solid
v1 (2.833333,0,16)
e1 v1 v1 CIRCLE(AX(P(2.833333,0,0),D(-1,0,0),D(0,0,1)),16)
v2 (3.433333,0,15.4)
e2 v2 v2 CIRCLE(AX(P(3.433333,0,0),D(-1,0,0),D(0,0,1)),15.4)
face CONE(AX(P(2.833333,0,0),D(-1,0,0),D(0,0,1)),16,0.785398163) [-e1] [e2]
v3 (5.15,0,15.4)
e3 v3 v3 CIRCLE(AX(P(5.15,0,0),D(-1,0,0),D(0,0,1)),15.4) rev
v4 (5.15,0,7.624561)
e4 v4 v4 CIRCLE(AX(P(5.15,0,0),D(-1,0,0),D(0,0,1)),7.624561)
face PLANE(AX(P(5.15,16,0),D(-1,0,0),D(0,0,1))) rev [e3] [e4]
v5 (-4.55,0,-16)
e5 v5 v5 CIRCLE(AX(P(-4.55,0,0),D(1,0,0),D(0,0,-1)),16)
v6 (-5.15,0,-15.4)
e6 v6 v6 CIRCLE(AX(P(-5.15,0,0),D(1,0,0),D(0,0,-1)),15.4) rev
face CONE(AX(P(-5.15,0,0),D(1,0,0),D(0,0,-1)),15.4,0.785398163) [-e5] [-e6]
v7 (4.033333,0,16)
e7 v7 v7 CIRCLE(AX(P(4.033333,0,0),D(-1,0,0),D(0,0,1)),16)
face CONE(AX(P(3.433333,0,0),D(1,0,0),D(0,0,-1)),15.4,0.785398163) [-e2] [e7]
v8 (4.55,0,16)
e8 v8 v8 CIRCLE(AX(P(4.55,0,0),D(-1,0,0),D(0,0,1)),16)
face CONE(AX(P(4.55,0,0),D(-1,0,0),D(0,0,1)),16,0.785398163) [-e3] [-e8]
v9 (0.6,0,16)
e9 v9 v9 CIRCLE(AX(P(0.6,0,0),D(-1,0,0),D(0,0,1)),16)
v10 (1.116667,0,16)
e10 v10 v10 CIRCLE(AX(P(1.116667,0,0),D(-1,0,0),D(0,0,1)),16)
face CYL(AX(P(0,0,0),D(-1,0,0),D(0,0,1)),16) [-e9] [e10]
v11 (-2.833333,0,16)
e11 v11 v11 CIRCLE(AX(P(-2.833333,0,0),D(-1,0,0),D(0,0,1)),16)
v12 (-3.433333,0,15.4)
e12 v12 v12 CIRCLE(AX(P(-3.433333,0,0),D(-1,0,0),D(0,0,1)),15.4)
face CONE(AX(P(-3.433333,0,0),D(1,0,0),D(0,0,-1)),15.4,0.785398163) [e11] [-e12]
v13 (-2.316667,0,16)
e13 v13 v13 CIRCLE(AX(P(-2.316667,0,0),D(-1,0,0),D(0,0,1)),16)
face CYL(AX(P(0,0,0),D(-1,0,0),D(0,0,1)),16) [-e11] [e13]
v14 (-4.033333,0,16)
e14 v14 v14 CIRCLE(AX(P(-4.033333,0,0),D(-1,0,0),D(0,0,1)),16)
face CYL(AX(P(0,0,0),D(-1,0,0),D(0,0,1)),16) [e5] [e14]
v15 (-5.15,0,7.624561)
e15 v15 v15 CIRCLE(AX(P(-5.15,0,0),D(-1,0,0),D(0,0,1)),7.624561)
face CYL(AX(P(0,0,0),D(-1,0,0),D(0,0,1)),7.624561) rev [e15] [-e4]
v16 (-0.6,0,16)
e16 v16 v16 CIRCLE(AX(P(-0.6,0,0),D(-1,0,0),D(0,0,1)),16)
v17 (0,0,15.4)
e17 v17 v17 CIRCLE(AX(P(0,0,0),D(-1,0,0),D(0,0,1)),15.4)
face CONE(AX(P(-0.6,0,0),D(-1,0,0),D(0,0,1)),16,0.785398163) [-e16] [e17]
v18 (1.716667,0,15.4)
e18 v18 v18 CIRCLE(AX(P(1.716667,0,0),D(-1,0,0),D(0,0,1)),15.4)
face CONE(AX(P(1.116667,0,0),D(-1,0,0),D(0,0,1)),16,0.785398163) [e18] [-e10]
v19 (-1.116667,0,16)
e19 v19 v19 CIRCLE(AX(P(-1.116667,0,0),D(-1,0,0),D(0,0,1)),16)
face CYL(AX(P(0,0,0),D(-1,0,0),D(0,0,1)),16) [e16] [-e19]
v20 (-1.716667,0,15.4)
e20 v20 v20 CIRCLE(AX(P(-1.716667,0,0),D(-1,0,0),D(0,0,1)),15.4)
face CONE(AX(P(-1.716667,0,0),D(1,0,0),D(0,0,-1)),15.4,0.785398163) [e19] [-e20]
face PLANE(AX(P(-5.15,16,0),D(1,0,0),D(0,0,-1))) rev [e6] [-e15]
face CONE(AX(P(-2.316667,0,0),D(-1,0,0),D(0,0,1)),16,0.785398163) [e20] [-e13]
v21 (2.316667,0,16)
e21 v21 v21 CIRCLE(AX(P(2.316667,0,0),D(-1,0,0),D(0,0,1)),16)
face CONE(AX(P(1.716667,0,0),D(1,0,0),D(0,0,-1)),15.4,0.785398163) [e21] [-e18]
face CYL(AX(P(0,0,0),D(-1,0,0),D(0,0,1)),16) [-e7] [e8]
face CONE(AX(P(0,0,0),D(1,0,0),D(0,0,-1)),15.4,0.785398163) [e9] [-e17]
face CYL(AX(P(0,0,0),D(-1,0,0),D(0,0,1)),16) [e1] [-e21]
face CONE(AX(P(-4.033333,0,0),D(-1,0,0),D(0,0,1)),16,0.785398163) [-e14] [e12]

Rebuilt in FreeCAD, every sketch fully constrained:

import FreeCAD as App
import Part
import Sketcher
from FreeCAD import Vector
Q = App.Units.Quantity


def edges_at(feature, points):
    """Names of the edges that pass closest to the given points."""
    edges = feature.Shape.Edges
    near = lambda p: min(range(len(edges)), key=lambda i: edges[i].distToShape(Part.Vertex(*p))[0])
    return sorted({f"Edge{near(p) + 1}" for p in points})

doc = App.newDocument("Part")
body = doc.addObject("PartDesign::Body", "Body")

# Sketch on XY plane
sketch1 = body.newObject("Sketcher::SketchObject", "Sketch")
sketch1.AttachmentSupport = (doc.getObject("XY_Plane"), [""])
sketch1.MapMode = "FlatFace"
sketch1.addGeometry(Part.LineSegment(Vector(-5, 16, 0), Vector(-5, 8, 0)), False)
sketch1.addGeometry(Part.LineSegment(Vector(-5, 8, 0), Vector(5, 8, 0)), False)
sketch1.addGeometry(Part.LineSegment(Vector(5, 8, 0), Vector(5, 16, 0)), False)
sketch1.addGeometry(Part.LineSegment(Vector(5, 16, 0), Vector(-5, 16, 0)), False)
sketch1.addConstraint(Sketcher.Constraint("Coincident", 0, 2, 1, 1))
sketch1.addConstraint(Sketcher.Constraint("Coincident", 1, 2, 2, 1))
sketch1.addConstraint(Sketcher.Constraint("Coincident", 2, 2, 3, 1))
sketch1.addConstraint(Sketcher.Constraint("Coincident", 3, 2, 0, 1))
sketch1.addConstraint(Sketcher.Constraint("Vertical", 0))
sketch1.addConstraint(Sketcher.Constraint("Horizontal", 1))
sketch1.addConstraint(Sketcher.Constraint("Vertical", 2))
sketch1.addConstraint(Sketcher.Constraint("Horizontal", 3))
sketch1.addConstraint(Sketcher.Constraint("DistanceX", 1, 1, 1, 2, Q("10.3 mm")))
sketch1.addConstraint(Sketcher.Constraint("DistanceY", -1, 1, 2, 2, Q("16 mm")))
sketch1.addConstraint(Sketcher.Constraint("DistanceX", 0, 2, -1, 1, Q("5.15 mm")))
sketch1.addConstraint(Sketcher.Constraint("DistanceY", 0, 2, 0, 1, Q("8.375439 mm")))
revolution = body.newObject("PartDesign::Revolution", "Revolution")
revolution.Profile = sketch1
revolution.ReferenceAxis = (sketch1, ["H_Axis"])
revolution.Angle = 360
doc.recompute()

chamfer = body.newObject("PartDesign::Chamfer", "Chamfer")
chamfer.Base = (revolution, edges_at(revolution, [(-5.15, 0, -16), (5.15, 0, -16)]))
chamfer.Size = 0.6

# Sketch on XY plane
sketch2 = body.newObject("Sketcher::SketchObject", "Sketch001")
sketch2.AttachmentSupport = (doc.getObject("XY_Plane"), [""])
sketch2.MapMode = "FlatFace"
sketch2.addGeometry(Part.LineSegment(Vector(-4, 16, 0), Vector(-3.4, 15.4, 0)), False)
sketch2.addGeometry(Part.LineSegment(Vector(-3.4, 15.4, 0), Vector(-2.8, 16, 0)), False)
sketch2.addGeometry(Part.LineSegment(Vector(-2.8, 16, 0), Vector(-4, 16, 0)), False)
sketch2.addGeometry(Part.LineSegment(Vector(-1.7, 15.4, 0), Vector(-1.1, 16, 0)), False)
sketch2.addGeometry(Part.LineSegment(Vector(-1.1, 16, 0), Vector(-2.3, 16, 0)), False)
sketch2.addGeometry(Part.LineSegment(Vector(-2.3, 16, 0), Vector(-1.7, 15.4, 0)), False)
sketch2.addGeometry(Part.LineSegment(Vector(0, 15.4, 0), Vector(0.6, 16, 0)), False)
sketch2.addGeometry(Part.LineSegment(Vector(0.6, 16, 0), Vector(-0.6, 16, 0)), False)
sketch2.addGeometry(Part.LineSegment(Vector(-0.6, 16, 0), Vector(0, 15.4, 0)), False)
sketch2.addGeometry(Part.LineSegment(Vector(1.7, 15.4, 0), Vector(2.3, 16, 0)), False)
sketch2.addGeometry(Part.LineSegment(Vector(2.3, 16, 0), Vector(1.1, 16, 0)), False)
sketch2.addGeometry(Part.LineSegment(Vector(1.1, 16, 0), Vector(1.7, 15.4, 0)), False)
sketch2.addGeometry(Part.LineSegment(Vector(3.4, 15.4, 0), Vector(4, 16, 0)), False)
sketch2.addGeometry(Part.LineSegment(Vector(4, 16, 0), Vector(2.8, 16, 0)), False)
sketch2.addGeometry(Part.LineSegment(Vector(2.8, 16, 0), Vector(3.4, 15.4, 0)), False)
sketch2.addConstraint(Sketcher.Constraint("Coincident", 0, 2, 1, 1))
sketch2.addConstraint(Sketcher.Constraint("Coincident", 1, 2, 2, 1))
sketch2.addConstraint(Sketcher.Constraint("Coincident", 2, 2, 0, 1))
sketch2.addConstraint(Sketcher.Constraint("Coincident", 3, 2, 4, 1))
sketch2.addConstraint(Sketcher.Constraint("Coincident", 4, 2, 5, 1))
sketch2.addConstraint(Sketcher.Constraint("Coincident", 5, 2, 3, 1))
sketch2.addConstraint(Sketcher.Constraint("Coincident", 6, 2, 7, 1))
sketch2.addConstraint(Sketcher.Constraint("Coincident", 7, 2, 8, 1))
sketch2.addConstraint(Sketcher.Constraint("Coincident", 8, 2, 6, 1))
sketch2.addConstraint(Sketcher.Constraint("Coincident", 9, 2, 10, 1))
sketch2.addConstraint(Sketcher.Constraint("Coincident", 10, 2, 11, 1))
sketch2.addConstraint(Sketcher.Constraint("Coincident", 11, 2, 9, 1))
sketch2.addConstraint(Sketcher.Constraint("Coincident", 12, 2, 13, 1))
sketch2.addConstraint(Sketcher.Constraint("Coincident", 13, 2, 14, 1))
sketch2.addConstraint(Sketcher.Constraint("Coincident", 14, 2, 12, 1))
sketch2.addConstraint(Sketcher.Constraint("Horizontal", 2))
sketch2.addConstraint(Sketcher.Constraint("Horizontal", 4))
sketch2.addConstraint(Sketcher.Constraint("Horizontal", 7))
sketch2.addConstraint(Sketcher.Constraint("Horizontal", 10))
sketch2.addConstraint(Sketcher.Constraint("Horizontal", 13))
sketch2.addConstraint(Sketcher.Constraint("Symmetric", 4, 2, 9, 2, -2))
sketch2.addConstraint(Sketcher.Constraint("Symmetric", 5, 2, 11, 2, -2))
sketch2.addConstraint(Sketcher.Constraint("Symmetric", 2, 2, 12, 2, -2))
sketch2.addConstraint(Sketcher.Constraint("Symmetric", 0, 2, 14, 2, -2))
sketch2.addConstraint(Sketcher.Constraint("PointOnObject", 8, 2, -2))
sketch2.addConstraint(Sketcher.Constraint("Perpendicular", 0, 1))
sketch2.addConstraint(Sketcher.Constraint("Parallel", 1, 3))
sketch2.addConstraint(Sketcher.Constraint("Perpendicular", 3, 5))
sketch2.addConstraint(Sketcher.Constraint("Perpendicular", 5, 6))
sketch2.addConstraint(Sketcher.Constraint("Perpendicular", 6, 8))
sketch2.addConstraint(Sketcher.Constraint("Perpendicular", 8, 9))
sketch2.addConstraint(Sketcher.Constraint("Perpendicular", 9, 11))
sketch2.addConstraint(Sketcher.Constraint("Perpendicular", 12, 14))
sketch2.addConstraint(Sketcher.Constraint("Horizontal", 2, 2, 3, 2))
sketch2.addConstraint(Sketcher.Constraint("Horizontal", 0, 2, 5, 2))
sketch2.addConstraint(Sketcher.Constraint("Horizontal", 4, 2, 6, 2))
sketch2.addConstraint(Sketcher.Constraint("Horizontal", 5, 2, 8, 2))
sketch2.addConstraint(Sketcher.Constraint("DistanceX", 2, 2, 2, 1, Q("1.2 mm")))
sketch2.addConstraint(Sketcher.Constraint("DistanceY", -1, 1, 1, 2, Q("16 mm")))
sketch2.addConstraint(Sketcher.Constraint("DistanceX", 0, 2, -1, 1, Q("3.433333 mm")))
sketch2.addConstraint(Sketcher.Constraint("DistanceX", 3, 2, -1, 1, Q("1.116667 mm")))
groove = body.newObject("PartDesign::Groove", "Groove")
groove.Profile = sketch2
groove.ReferenceAxis = (sketch2, ["H_Axis"])
groove.Angle = 360

doc.recompute()
